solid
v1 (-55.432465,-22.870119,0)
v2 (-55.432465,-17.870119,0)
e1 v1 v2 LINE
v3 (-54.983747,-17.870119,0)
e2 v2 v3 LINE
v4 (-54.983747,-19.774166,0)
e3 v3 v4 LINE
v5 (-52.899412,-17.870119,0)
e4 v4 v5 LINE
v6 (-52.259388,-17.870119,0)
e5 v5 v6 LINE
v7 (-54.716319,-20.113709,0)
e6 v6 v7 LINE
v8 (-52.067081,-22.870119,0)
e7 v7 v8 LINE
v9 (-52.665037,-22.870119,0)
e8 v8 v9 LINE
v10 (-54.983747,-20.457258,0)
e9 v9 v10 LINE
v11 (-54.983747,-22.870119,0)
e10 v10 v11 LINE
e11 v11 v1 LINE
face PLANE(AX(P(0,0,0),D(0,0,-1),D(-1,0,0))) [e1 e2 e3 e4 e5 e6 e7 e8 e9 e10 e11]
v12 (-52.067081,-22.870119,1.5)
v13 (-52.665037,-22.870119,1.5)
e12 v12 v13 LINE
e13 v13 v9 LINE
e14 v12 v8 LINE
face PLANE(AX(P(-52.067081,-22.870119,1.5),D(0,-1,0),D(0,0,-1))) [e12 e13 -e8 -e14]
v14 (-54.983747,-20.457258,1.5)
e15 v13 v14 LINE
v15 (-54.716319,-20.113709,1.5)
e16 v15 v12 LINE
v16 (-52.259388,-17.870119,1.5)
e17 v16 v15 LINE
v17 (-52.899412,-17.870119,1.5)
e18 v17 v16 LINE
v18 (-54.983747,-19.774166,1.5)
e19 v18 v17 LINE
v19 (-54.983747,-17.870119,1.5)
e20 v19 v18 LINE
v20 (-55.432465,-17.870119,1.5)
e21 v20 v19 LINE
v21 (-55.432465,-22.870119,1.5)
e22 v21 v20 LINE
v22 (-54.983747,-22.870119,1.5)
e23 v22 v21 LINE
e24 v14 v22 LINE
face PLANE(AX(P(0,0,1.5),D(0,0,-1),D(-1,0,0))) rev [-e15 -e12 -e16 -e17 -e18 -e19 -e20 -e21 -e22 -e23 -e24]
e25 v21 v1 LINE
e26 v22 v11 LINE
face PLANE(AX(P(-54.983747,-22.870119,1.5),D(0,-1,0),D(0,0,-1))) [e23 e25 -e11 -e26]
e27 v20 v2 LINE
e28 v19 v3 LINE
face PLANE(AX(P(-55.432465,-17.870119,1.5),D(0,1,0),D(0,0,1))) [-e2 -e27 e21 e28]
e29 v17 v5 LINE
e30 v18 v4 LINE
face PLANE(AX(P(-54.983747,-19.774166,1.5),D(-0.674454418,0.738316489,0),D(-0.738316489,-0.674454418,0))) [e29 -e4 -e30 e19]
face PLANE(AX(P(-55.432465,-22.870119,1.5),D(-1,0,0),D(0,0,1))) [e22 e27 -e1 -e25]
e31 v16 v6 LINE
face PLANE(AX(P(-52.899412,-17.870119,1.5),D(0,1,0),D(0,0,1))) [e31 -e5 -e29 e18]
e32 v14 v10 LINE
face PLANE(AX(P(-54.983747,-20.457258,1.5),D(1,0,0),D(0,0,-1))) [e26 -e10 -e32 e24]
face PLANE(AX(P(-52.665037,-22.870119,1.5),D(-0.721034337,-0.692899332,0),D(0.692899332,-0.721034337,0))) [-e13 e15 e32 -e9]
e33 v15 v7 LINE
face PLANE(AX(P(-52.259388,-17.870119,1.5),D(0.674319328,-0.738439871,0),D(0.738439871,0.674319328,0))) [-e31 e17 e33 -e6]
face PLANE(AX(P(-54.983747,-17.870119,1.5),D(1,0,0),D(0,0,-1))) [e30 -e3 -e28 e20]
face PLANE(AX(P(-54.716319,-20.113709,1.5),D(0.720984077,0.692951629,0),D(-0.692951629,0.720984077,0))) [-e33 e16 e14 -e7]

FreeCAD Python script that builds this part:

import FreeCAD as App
import Part
import Sketcher
from FreeCAD import Vector
Q = App.Units.Quantity

doc = App.newDocument("Part")
body = doc.addObject("PartDesign::Body", "Body")

# Sketch on XY plane
sketch1 = body.newObject("Sketcher::SketchObject", "Sketch")
sketch1.AttachmentSupport = (doc.getObject("XY_Plane"), [""])
sketch1.MapMode = "FlatFace"
sketch1.addGeometry([
    Part.LineSegment(Vector(-54.98, -17.87, 0), Vector(-55.43, -17.87, 0)),  # 0
    Part.LineSegment(Vector(-55.43, -17.87, 0), Vector(-55.43, -22.87, 0)),  # 1
    Part.LineSegment(Vector(-55.43, -22.87, 0), Vector(-54.98, -22.87, 0)),  # 2
    Part.LineSegment(Vector(-54.98, -22.87, 0), Vector(-54.98, -20.46, 0)),  # 3
    Part.LineSegment(Vector(-54.98, -20.46, 0), Vector(-52.67, -22.87, 0)),  # 4
    Part.LineSegment(Vector(-52.67, -22.87, 0), Vector(-52.07, -22.87, 0)),  # 5
    Part.LineSegment(Vector(-52.07, -22.87, 0), Vector(-54.72, -20.11, 0)),  # 6
    Part.LineSegment(Vector(-54.72, -20.11, 0), Vector(-52.26, -17.87, 0)),  # 7
    Part.LineSegment(Vector(-52.26, -17.87, 0), Vector(-52.9, -17.87, 0)),  # 8
    Part.LineSegment(Vector(-52.9, -17.87, 0), Vector(-54.98, -19.77, 0)),  # 9
    Part.LineSegment(Vector(-54.98, -19.77, 0), Vector(-54.98, -17.87, 0)),  # 10
], False)
sketch1.addConstraint([
    Sketcher.Constraint("Coincident", 0, 2, 1, 1),
    Sketcher.Constraint("Coincident", 1, 2, 2, 1),
    Sketcher.Constraint("Coincident", 2, 2, 3, 1),
    Sketcher.Constraint("Coincident", 3, 2, 4, 1),
    Sketcher.Constraint("Coincident", 4, 2, 5, 1),
    Sketcher.Constraint("Coincident", 5, 2, 6, 1),
    Sketcher.Constraint("Coincident", 6, 2, 7, 1),
    Sketcher.Constraint("Coincident", 7, 2, 8, 1),
    Sketcher.Constraint("Coincident", 8, 2, 9, 1),
    Sketcher.Constraint("Coincident", 9, 2, 10, 1),
    Sketcher.Constraint("Coincident", 10, 2, 0, 1),
    Sketcher.Constraint("Horizontal", 0),
    Sketcher.Constraint("Vertical", 1),
    Sketcher.Constraint("Horizontal", 2),
    Sketcher.Constraint("Vertical", 3),
    Sketcher.Constraint("Horizontal", 5),
    Sketcher.Constraint("Horizontal", 8),
    Sketcher.Constraint("Vertical", 10),
    Sketcher.Constraint("Horizontal", 2, 2, 4, 2),
    Sketcher.Constraint("Horizontal", 0, 2, 7, 2),
    Sketcher.Constraint("Vertical", 3, 2, 9, 2),
    Sketcher.Constraint("DistanceY", 1, 2, 1, 1, Q("5 mm")),
    Sketcher.Constraint("DistanceY", 3, 1, 3, 2, Q("2.412861 mm")),
    Sketcher.Constraint("Distance", 7, Q("3.327192 mm")),
    Sketcher.Constraint("Distance", 9, Q("2.823091 mm")),
    Sketcher.Constraint("DistanceX", 0, 2, 0, 1, Q("0.448718 mm")),
    Sketcher.Constraint("DistanceX", 5, 1, 5, 2, Q("0.597957 mm")),
    Sketcher.Constraint("DistanceX", 8, 2, 8, 1, Q("0.640024 mm")),
    Sketcher.Constraint("DistanceY", 10, 1, 10, 2, Q("1.904046 mm")),
    Sketcher.Constraint("DistanceY", 0, 2, -1, 1, Q("17.870119 mm")),
    Sketcher.Constraint("DistanceX", 5, 2, -1, 1, Q("52.067081 mm")),
    Sketcher.Constraint("DistanceX", 6, 2, -1, 1, Q("54.716319 mm")),
    Sketcher.Constraint("DistanceY", 6, 2, -1, 1, Q("20.113709 mm")),
])
pad1 = body.newObject("PartDesign::Pad", "Pad")
pad1.Profile = sketch1
pad1.Length = 1.5

doc.recompute()
